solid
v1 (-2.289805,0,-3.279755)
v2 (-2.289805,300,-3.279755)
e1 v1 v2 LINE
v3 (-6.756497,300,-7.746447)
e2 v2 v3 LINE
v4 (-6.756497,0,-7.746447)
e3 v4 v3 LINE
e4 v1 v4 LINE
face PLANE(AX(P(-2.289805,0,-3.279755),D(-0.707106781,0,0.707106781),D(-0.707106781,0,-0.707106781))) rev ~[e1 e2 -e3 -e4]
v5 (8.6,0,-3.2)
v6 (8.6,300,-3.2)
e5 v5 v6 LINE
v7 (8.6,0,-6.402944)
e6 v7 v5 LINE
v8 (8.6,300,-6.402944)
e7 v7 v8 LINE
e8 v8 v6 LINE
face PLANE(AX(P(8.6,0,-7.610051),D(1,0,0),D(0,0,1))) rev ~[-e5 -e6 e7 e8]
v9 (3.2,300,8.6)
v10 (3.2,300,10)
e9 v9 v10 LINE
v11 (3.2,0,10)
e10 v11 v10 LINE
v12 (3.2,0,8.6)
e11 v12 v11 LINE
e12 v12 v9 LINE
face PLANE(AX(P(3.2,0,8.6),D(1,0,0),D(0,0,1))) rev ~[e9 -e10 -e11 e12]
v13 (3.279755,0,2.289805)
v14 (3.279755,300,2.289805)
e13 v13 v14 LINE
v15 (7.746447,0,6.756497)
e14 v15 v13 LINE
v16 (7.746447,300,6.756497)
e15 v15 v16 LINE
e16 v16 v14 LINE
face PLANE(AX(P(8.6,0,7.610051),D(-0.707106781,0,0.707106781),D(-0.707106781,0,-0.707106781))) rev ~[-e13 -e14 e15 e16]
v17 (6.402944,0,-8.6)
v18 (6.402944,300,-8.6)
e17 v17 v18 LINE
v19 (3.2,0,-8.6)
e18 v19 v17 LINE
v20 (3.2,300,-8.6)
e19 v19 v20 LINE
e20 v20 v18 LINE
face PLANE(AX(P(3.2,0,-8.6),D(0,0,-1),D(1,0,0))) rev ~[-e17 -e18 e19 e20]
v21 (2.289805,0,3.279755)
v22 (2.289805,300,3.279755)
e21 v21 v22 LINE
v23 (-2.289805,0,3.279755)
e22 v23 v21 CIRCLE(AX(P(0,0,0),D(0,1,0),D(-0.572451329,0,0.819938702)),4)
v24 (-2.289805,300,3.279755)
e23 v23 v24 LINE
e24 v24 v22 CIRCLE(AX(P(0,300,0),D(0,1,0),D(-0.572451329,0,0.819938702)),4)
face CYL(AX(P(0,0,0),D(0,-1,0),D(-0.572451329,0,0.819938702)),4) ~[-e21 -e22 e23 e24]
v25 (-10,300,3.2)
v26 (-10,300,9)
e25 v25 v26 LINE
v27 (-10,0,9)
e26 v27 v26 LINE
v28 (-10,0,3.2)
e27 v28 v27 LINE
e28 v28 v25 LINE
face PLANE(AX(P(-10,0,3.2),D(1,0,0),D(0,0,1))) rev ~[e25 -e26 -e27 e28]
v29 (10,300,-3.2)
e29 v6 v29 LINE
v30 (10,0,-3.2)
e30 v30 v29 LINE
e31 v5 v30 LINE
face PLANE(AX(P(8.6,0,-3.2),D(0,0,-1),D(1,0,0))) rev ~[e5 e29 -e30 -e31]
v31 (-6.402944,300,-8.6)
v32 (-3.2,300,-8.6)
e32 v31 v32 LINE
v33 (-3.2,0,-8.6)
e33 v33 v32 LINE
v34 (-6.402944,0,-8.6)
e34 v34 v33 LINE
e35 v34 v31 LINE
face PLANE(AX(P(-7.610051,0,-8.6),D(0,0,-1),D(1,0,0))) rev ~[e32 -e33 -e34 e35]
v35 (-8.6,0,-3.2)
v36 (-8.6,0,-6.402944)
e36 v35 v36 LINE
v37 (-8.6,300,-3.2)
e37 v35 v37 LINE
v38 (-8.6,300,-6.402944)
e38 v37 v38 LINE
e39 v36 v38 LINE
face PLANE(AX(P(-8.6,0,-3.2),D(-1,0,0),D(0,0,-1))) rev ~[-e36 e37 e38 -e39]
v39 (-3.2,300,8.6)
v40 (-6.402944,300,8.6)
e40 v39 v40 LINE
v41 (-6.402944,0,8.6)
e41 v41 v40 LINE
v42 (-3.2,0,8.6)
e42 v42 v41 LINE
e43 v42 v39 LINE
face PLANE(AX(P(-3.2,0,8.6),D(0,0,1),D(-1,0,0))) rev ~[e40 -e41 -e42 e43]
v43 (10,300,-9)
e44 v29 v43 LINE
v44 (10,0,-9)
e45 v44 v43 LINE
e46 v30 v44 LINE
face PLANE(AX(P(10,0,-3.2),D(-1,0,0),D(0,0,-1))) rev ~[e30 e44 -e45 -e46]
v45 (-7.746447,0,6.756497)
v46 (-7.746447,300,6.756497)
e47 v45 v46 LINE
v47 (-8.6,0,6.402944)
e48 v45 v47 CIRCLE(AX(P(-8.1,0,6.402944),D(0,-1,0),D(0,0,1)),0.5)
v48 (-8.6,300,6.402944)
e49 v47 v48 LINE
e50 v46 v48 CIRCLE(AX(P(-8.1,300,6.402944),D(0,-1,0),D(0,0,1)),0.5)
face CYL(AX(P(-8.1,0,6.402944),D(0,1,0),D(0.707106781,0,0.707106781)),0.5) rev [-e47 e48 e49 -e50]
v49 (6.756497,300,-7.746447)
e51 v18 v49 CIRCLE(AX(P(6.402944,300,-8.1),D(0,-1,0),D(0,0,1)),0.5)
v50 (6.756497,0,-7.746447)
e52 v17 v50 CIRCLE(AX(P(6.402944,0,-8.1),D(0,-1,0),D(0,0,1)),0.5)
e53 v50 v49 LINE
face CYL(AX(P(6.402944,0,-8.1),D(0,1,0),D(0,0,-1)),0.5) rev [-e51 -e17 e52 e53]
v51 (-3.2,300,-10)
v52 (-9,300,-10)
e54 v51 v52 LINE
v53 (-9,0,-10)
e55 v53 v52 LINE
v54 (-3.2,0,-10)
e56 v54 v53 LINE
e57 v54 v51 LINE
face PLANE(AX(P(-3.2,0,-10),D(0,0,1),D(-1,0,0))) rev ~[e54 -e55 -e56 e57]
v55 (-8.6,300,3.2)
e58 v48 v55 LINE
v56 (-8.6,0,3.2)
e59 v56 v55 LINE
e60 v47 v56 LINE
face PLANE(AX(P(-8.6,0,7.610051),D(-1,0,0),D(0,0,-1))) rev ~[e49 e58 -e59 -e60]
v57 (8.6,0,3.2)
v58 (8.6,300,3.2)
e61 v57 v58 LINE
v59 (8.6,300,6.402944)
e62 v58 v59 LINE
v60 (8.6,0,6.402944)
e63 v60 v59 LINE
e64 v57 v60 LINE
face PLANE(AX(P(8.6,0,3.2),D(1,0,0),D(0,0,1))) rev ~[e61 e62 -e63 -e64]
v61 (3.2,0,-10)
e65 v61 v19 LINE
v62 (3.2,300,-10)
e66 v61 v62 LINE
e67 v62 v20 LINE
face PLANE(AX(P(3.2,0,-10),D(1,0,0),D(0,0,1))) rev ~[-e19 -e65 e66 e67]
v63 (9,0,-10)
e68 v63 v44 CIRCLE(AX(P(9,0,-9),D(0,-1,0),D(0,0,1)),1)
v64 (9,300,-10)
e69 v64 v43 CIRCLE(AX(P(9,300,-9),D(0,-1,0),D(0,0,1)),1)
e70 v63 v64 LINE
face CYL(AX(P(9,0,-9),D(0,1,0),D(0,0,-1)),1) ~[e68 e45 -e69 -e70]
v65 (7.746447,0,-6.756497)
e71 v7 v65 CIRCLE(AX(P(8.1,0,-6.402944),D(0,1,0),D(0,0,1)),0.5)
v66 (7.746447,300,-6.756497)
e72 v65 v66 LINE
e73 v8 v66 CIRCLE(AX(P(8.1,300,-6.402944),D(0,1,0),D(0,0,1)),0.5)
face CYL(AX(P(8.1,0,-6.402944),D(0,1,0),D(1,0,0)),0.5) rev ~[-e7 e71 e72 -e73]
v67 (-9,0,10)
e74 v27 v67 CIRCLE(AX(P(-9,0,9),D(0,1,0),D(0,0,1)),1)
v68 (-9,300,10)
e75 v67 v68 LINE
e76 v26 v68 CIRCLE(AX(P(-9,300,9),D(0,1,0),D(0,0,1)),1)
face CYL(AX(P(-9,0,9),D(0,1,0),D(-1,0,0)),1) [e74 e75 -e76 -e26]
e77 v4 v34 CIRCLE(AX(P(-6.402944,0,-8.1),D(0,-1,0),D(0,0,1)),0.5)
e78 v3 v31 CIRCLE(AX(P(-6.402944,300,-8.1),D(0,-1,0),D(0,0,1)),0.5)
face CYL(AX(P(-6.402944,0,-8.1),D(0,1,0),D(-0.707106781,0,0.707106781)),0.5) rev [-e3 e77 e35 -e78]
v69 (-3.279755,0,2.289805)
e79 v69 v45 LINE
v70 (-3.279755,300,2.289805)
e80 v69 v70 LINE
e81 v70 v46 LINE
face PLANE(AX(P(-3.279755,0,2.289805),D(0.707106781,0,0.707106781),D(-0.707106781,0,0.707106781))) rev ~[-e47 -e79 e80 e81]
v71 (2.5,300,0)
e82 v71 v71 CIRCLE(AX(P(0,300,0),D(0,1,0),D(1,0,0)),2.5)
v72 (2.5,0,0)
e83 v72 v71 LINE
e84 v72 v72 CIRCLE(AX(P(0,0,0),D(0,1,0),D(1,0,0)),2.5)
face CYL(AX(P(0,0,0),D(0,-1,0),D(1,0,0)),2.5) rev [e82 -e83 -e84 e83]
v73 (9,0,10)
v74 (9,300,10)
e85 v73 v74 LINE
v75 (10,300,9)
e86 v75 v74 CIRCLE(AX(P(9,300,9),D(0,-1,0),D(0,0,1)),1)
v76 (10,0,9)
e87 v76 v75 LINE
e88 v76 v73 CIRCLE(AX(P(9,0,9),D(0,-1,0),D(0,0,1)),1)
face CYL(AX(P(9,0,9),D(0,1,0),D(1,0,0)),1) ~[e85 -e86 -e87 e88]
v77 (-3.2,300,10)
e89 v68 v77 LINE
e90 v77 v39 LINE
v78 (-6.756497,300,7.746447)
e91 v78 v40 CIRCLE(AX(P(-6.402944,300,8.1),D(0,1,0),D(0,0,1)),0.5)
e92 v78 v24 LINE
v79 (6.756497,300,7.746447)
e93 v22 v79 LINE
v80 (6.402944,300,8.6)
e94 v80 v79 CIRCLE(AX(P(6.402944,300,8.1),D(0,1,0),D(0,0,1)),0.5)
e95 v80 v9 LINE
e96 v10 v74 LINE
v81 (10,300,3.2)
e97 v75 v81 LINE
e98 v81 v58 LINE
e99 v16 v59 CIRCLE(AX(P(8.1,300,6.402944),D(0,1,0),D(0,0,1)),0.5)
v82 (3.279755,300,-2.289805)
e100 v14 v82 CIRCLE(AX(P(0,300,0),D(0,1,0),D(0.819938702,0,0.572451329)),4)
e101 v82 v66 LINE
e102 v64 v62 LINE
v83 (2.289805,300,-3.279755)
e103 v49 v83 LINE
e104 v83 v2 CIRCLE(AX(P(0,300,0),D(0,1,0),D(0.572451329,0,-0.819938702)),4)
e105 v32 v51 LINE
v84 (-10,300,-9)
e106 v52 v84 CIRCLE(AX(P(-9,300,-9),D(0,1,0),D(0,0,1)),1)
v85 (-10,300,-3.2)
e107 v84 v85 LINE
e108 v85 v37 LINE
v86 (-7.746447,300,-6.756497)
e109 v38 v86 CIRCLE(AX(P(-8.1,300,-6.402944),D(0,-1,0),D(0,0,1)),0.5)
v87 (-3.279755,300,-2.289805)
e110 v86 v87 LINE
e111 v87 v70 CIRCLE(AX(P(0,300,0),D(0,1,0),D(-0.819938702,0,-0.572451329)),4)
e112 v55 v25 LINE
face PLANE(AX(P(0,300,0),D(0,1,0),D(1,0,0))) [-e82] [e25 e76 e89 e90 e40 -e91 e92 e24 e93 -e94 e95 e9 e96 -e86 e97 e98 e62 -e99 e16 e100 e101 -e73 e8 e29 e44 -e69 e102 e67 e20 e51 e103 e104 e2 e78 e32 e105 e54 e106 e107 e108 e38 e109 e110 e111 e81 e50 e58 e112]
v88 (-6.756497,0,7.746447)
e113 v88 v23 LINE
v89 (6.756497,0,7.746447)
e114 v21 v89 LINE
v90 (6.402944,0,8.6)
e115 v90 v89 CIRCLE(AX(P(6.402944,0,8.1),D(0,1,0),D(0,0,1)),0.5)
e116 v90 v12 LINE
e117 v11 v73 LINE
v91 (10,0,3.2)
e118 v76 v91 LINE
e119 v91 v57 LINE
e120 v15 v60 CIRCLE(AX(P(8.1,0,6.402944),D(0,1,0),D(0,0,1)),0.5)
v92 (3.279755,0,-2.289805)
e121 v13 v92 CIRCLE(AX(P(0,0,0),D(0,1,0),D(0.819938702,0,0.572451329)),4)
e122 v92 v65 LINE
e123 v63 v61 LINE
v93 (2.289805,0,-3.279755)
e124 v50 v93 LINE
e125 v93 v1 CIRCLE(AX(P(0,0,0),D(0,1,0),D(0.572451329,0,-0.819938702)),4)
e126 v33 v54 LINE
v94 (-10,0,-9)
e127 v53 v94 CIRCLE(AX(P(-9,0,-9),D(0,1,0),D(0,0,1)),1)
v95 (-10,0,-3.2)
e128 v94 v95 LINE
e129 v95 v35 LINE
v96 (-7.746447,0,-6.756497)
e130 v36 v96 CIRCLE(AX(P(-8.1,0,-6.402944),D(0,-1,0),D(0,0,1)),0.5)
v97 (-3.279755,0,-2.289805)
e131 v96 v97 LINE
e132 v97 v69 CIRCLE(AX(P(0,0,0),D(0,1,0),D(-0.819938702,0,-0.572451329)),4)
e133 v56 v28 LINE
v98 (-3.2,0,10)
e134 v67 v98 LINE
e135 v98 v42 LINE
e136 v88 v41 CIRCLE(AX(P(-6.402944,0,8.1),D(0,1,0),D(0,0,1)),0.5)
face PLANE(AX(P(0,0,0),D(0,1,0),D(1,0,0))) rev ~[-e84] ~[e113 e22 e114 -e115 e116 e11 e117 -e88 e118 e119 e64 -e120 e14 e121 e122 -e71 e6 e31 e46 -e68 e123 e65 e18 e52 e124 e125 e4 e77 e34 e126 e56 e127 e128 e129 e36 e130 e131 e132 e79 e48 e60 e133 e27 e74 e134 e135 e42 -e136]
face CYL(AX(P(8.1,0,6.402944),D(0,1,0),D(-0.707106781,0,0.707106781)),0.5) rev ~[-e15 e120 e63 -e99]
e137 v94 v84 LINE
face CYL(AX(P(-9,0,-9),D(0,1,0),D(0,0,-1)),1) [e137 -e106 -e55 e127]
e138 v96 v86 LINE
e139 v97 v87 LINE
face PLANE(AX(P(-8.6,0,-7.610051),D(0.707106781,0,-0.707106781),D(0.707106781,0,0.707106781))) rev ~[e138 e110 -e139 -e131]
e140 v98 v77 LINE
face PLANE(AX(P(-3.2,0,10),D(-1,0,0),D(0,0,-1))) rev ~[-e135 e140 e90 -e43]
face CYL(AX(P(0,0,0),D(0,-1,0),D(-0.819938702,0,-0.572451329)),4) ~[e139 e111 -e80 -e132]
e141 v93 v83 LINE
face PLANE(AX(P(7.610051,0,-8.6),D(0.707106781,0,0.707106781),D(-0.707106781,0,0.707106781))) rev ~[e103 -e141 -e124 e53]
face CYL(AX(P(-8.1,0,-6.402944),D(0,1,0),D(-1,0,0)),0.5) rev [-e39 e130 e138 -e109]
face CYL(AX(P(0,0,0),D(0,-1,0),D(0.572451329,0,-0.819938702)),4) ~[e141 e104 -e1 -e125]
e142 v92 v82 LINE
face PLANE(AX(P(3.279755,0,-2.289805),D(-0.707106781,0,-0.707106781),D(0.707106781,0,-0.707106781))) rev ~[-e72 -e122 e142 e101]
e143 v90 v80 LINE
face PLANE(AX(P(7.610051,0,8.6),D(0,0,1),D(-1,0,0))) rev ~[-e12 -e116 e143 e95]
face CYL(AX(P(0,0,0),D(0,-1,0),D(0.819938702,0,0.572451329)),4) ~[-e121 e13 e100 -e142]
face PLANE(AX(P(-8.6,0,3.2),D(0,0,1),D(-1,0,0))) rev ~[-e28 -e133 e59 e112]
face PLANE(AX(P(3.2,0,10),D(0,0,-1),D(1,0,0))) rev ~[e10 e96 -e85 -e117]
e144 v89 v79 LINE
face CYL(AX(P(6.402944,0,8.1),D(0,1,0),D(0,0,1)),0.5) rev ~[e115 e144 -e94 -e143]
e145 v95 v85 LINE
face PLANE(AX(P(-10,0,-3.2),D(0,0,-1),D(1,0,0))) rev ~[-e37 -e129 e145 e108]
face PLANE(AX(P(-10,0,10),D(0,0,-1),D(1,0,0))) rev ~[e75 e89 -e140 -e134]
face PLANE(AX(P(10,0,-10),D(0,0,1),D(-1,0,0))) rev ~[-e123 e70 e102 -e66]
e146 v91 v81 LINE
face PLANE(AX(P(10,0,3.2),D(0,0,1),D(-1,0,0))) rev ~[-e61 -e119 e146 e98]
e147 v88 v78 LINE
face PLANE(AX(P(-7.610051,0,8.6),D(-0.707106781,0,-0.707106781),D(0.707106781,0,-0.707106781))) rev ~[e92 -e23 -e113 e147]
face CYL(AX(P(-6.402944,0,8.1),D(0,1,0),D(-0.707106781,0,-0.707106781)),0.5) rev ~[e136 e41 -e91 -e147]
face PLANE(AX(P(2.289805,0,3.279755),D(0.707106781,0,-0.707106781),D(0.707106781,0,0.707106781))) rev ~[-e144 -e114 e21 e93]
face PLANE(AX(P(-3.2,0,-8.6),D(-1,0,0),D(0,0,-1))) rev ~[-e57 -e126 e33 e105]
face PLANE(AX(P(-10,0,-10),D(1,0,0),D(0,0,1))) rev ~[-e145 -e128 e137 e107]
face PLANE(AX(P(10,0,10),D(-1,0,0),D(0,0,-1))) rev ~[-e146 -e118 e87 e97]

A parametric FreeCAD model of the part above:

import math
import FreeCAD as App
import Part
import Sketcher
from FreeCAD import Vector
Q = App.Units.Quantity


def edges_at(feature, points):
    """Names of the edges that pass closest to the given points."""
    edges = feature.Shape.Edges
    near = lambda p: min(range(len(edges)), key=lambda i: edges[i].distToShape(Part.Vertex(*p))[0])
    return sorted({f"Edge{near(p) + 1}" for p in points})

doc = App.newDocument("Part")
body = doc.addObject("PartDesign::Body", "Body")

sketch1 = body.newObject("Sketcher::SketchObject", "Sketch")
sketch1.AttachmentSupport = (doc.getObject("XZ_Plane"), [""])
sketch1.MapMode = "FlatFace"
sketch1.addGeometry([
    Part.LineSegment(Vector(3.2, -10, 0), Vector(3.2, -8.6, 0)),
    Part.LineSegment(Vector(3.2, -8.6, 0), Vector(7.610051, -8.6, 0)),
    Part.LineSegment(Vector(7.610051, -8.6, 0), Vector(2.289805, -3.279755, 0)),
    Part.ArcOfCircle(Part.Circle(Vector(0, 0, 0), Vector(0, 0, 1), 4), math.radians(-124.921342), math.radians(-55.078658)),
    Part.LineSegment(Vector(-2.289805, -3.279755, 0), Vector(-7.610051, -8.6, 0)),
    Part.LineSegment(Vector(-7.610051, -8.6, 0), Vector(-3.2, -8.6, 0)),
    Part.LineSegment(Vector(-3.2, -8.6, 0), Vector(-3.2, -10, 0)),
    Part.LineSegment(Vector(-3.2, -10, 0), Vector(-10, -10, 0)),
    Part.LineSegment(Vector(-10, -10, 0), Vector(-10, -3.2, 0)),
    Part.LineSegment(Vector(-10, -3.2, 0), Vector(-8.6, -3.2, 0)),
    Part.LineSegment(Vector(-8.6, -3.2, 0), Vector(-8.6, -7.610051, 0)),
    Part.LineSegment(Vector(-8.6, -7.610051, 0), Vector(-3.279755, -2.289805, 0)),
    Part.ArcOfCircle(Part.Circle(Vector(0, 0, 0), Vector(0, 0, 1), 4), math.radians(145.078658), math.radians(214.921342)),
    Part.LineSegment(Vector(-3.279755, 2.289805, 0), Vector(-8.6, 7.610051, 0)),
    Part.LineSegment(Vector(-8.6, 7.610051, 0), Vector(-8.6, 3.2, 0)),
    Part.LineSegment(Vector(-8.6, 3.2, 0), Vector(-10, 3.2, 0)),
    Part.LineSegment(Vector(-10, 3.2, 0), Vector(-10, 10, 0)),
    Part.LineSegment(Vector(-10, 10, 0), Vector(-3.2, 10, 0)),
    Part.LineSegment(Vector(-3.2, 10, 0), Vector(-3.2, 8.6, 0)),
    Part.LineSegment(Vector(-3.2, 8.6, 0), Vector(-7.610051, 8.6, 0)),
    Part.LineSegment(Vector(-7.610051, 8.6, 0), Vector(-2.289805, 3.279755, 0)),
    Part.ArcOfCircle(Part.Circle(Vector(0, 0, 0), Vector(0, 0, 1), 4), math.radians(55.078658), math.radians(124.921342)),
    Part.LineSegment(Vector(2.289805, 3.279755, 0), Vector(7.610051, 8.6, 0)),
    Part.LineSegment(Vector(7.610051, 8.6, 0), Vector(3.2, 8.6, 0)),
    Part.LineSegment(Vector(3.2, 8.6, 0), Vector(3.2, 10, 0)),
    Part.LineSegment(Vector(3.2, 10, 0), Vector(10, 10, 0)),
    Part.LineSegment(Vector(10, 10, 0), Vector(10, 3.2, 0)),
    Part.LineSegment(Vector(10, 3.2, 0), Vector(8.6, 3.2, 0)),
    Part.LineSegment(Vector(8.6, 3.2, 0), Vector(8.6, 7.610051, 0)),
    Part.LineSegment(Vector(8.6, 7.610051, 0), Vector(3.279755, 2.289805, 0)),
    Part.ArcOfCircle(Part.Circle(Vector(0, 0, 0), Vector(0, 0, 1), 4), math.radians(-34.921342), math.radians(34.921342)),
    Part.LineSegment(Vector(3.279755, -2.289805, 0), Vector(8.6, -7.610051, 0)),
    Part.LineSegment(Vector(8.6, -7.610051, 0), Vector(8.6, -3.2, 0)),
    Part.LineSegment(Vector(8.6, -3.2, 0), Vector(10, -3.2, 0)),
    Part.LineSegment(Vector(10, -3.2, 0), Vector(10, -10, 0)),
    Part.LineSegment(Vector(10, -10, 0), Vector(3.2, -10, 0)),
    Part.Circle(Vector(0, 0, 0), Vector(0, 0, 1), 2.5),
], False)
sketch1.addConstraint([
    Sketcher.Constraint("Coincident", 0, 2, 1, 1),
    Sketcher.Constraint("Coincident", 1, 2, 2, 1),
    Sketcher.Constraint("Coincident", 2, 2, 3, 2),
    Sketcher.Constraint("Coincident", 3, 1, 4, 1),
    Sketcher.Constraint("Coincident", 4, 2, 5, 1),
    Sketcher.Constraint("Coincident", 5, 2, 6, 1),
    Sketcher.Constraint("Coincident", 6, 2, 7, 1),
    Sketcher.Constraint("Coincident", 7, 2, 8, 1),
    Sketcher.Constraint("Coincident", 8, 2, 9, 1),
    Sketcher.Constraint("Coincident", 9, 2, 10, 1),
    Sketcher.Constraint("Coincident", 10, 2, 11, 1),
    Sketcher.Constraint("Coincident", 11, 2, 12, 2),
    Sketcher.Constraint("Coincident", 12, 1, 13, 1),
    Sketcher.Constraint("Coincident", 13, 2, 14, 1),
    Sketcher.Constraint("Coincident", 14, 2, 15, 1),
    Sketcher.Constraint("Coincident", 15, 2, 16, 1),
    Sketcher.Constraint("Coincident", 16, 2, 17, 1),
    Sketcher.Constraint("Coincident", 17, 2, 18, 1),
    Sketcher.Constraint("Coincident", 18, 2, 19, 1),
    Sketcher.Constraint("Coincident", 19, 2, 20, 1),
    Sketcher.Constraint("Coincident", 20, 2, 21, 2),
    Sketcher.Constraint("Coincident", 21, 1, 22, 1),
    Sketcher.Constraint("Coincident", 22, 2, 23, 1),
    Sketcher.Constraint("Coincident", 23, 2, 24, 1),
    Sketcher.Constraint("Coincident", 24, 2, 25, 1),
    Sketcher.Constraint("Coincident", 25, 2, 26, 1),
    Sketcher.Constraint("Coincident", 26, 2, 27, 1),
    Sketcher.Constraint("Coincident", 27, 2, 28, 1),
    Sketcher.Constraint("Coincident", 28, 2, 29, 1),
    Sketcher.Constraint("Coincident", 29, 2, 30, 2),
    Sketcher.Constraint("Coincident", 30, 1, 31, 1),
    Sketcher.Constraint("Coincident", 31, 2, 32, 1),
    Sketcher.Constraint("Coincident", 32, 2, 33, 1),
    Sketcher.Constraint("Coincident", 33, 2, 34, 1),
    Sketcher.Constraint("Coincident", 34, 2, 35, 1),
    Sketcher.Constraint("Coincident", 35, 2, 0, 1),
    Sketcher.Constraint("Vertical", 0),
    Sketcher.Constraint("Horizontal", 1),
    Sketcher.Constraint("Horizontal", 5),
    Sketcher.Constraint("Vertical", 6),
    Sketcher.Constraint("Horizontal", 7),
    Sketcher.Constraint("Vertical", 8),
    Sketcher.Constraint("Horizontal", 9),
    Sketcher.Constraint("Vertical", 10),
    Sketcher.Constraint("Vertical", 14),
    Sketcher.Constraint("Horizontal", 15),
    Sketcher.Constraint("Vertical", 16),
    Sketcher.Constraint("Horizontal", 17),
    Sketcher.Constraint("Vertical", 18),
    Sketcher.Constraint("Horizontal", 19),
    Sketcher.Constraint("Horizontal", 23),
    Sketcher.Constraint("Vertical", 24),
    Sketcher.Constraint("Horizontal", 25),
    Sketcher.Constraint("Vertical", 26),
    Sketcher.Constraint("Horizontal", 27),
    Sketcher.Constraint("Vertical", 28),
    Sketcher.Constraint("Vertical", 32),
    Sketcher.Constraint("Horizontal", 33),
    Sketcher.Constraint("Vertical", 34),
    Sketcher.Constraint("Horizontal", 35),
    Sketcher.Constraint("Coincident", 3, 3, -1, 1),
    Sketcher.Constraint("Coincident", 12, 3, -1, 1),
    Sketcher.Constraint("Coincident", 21, 3, -1, 1),
    Sketcher.Constraint("Coincident", 30, 3, -1, 1),
    Sketcher.Constraint("Coincident", 36, 3, -1, 1),
    Sketcher.Constraint("Equal", 3, 12),
    Sketcher.Constraint("Equal", 12, 21),
    Sketcher.Constraint("Equal", 21, 30),
    Sketcher.Constraint("Symmetric", 0, 2, 18, 2, -1, 1),
    Sketcher.Constraint("Symmetric", 4, 2, 22, 2, -1, 1),
    Sketcher.Constraint("Symmetric", 6, 2, 24, 2, -1, 1),
    Sketcher.Constraint("Symmetric", 8, 2, 26, 2, -1, 1),
    Sketcher.Constraint("Symmetric", 10, 2, 28, 2, -1, 1),
    Sketcher.Constraint("Symmetric", 13, 2, 31, 2, -1, 1),
    Sketcher.Constraint("Symmetric", 15, 2, 33, 2, -1, 1),
    Sketcher.Constraint("Symmetric", 1, 2, 4, 2, -2),
    Sketcher.Constraint("Symmetric", 17, 2, 24, 2, -2),
    Sketcher.Constraint("Symmetric", 15, 2, 26, 2, -2),
    Sketcher.Constraint("Symmetric", 13, 2, 28, 2, -2),
    Sketcher.Constraint("Perpendicular", 2, 4),
    Sketcher.Constraint("Parallel", 4, 11),
    Sketcher.Constraint("Perpendicular", 11, 13),
    Sketcher.Constraint("Parallel", 13, 20),
    Sketcher.Constraint("Perpendicular", 20, 22),
    Sketcher.Constraint("Parallel", 22, 29),
    Sketcher.Constraint("Perpendicular", 29, 31),
    Sketcher.Constraint("Horizontal", 2, 2, 3, 1),
    Sketcher.Constraint("Horizontal", 20, 2, 21, 1),
    Sketcher.Constraint("Horizontal", 7, 2, 34, 2),
    Sketcher.Constraint("Equal", 33, 0),
    Sketcher.Constraint("Equal", 35, 8),
    Sketcher.Constraint("Equal", 23, 10),
    Sketcher.Constraint("Equal", 4, 11),
    Sketcher.Constraint("Diameter", 36, Q("5 mm")),
    Sketcher.Constraint("Radius", 3, Q("4 mm")),
    Sketcher.Constraint("DistanceX", 7, 2, 7, 1, Q("6.8 mm")),
    Sketcher.Constraint("DistanceX", 9, 1, 9, 2, Q("1.4 mm")),
    Sketcher.Constraint("DistanceY", 6, 2, -1, 1, Q("10 mm")),
    Sketcher.Constraint("DistanceX", 1, 1, 1, 2, Q("4.410051 mm")),
])
pad1 = body.newObject("PartDesign::Pad", "Pad")
pad1.Profile = sketch1
pad1.Length = 300
pad1.Reversed = True
doc.recompute()

fillet = body.newObject("PartDesign::Fillet", "Fillet")
fillet.Base = (pad1, edges_at(pad1, [
    (8.6, 150, -7.61),
    (8.6, 150, 7.61),
    (7.61, 150, 8.6),
    (-7.61, 150, 8.6),
    (-8.6, 150, 7.61),
    (-8.6, 150, -7.61),
    (-7.61, 150, -8.6),
    (7.61, 150, -8.6),
]))
fillet.Radius = 0.5
doc.recompute()

fillet2 = body.newObject("PartDesign::Fillet", "Fillet001")
fillet2.Base = (fillet, edges_at(fillet, [
    (10, 150, 10),
    (-10, 150, 10),
    (-10, 150, -10),
    (10, 150, -10),
]))
fillet2.Radius = 1

doc.recompute()
